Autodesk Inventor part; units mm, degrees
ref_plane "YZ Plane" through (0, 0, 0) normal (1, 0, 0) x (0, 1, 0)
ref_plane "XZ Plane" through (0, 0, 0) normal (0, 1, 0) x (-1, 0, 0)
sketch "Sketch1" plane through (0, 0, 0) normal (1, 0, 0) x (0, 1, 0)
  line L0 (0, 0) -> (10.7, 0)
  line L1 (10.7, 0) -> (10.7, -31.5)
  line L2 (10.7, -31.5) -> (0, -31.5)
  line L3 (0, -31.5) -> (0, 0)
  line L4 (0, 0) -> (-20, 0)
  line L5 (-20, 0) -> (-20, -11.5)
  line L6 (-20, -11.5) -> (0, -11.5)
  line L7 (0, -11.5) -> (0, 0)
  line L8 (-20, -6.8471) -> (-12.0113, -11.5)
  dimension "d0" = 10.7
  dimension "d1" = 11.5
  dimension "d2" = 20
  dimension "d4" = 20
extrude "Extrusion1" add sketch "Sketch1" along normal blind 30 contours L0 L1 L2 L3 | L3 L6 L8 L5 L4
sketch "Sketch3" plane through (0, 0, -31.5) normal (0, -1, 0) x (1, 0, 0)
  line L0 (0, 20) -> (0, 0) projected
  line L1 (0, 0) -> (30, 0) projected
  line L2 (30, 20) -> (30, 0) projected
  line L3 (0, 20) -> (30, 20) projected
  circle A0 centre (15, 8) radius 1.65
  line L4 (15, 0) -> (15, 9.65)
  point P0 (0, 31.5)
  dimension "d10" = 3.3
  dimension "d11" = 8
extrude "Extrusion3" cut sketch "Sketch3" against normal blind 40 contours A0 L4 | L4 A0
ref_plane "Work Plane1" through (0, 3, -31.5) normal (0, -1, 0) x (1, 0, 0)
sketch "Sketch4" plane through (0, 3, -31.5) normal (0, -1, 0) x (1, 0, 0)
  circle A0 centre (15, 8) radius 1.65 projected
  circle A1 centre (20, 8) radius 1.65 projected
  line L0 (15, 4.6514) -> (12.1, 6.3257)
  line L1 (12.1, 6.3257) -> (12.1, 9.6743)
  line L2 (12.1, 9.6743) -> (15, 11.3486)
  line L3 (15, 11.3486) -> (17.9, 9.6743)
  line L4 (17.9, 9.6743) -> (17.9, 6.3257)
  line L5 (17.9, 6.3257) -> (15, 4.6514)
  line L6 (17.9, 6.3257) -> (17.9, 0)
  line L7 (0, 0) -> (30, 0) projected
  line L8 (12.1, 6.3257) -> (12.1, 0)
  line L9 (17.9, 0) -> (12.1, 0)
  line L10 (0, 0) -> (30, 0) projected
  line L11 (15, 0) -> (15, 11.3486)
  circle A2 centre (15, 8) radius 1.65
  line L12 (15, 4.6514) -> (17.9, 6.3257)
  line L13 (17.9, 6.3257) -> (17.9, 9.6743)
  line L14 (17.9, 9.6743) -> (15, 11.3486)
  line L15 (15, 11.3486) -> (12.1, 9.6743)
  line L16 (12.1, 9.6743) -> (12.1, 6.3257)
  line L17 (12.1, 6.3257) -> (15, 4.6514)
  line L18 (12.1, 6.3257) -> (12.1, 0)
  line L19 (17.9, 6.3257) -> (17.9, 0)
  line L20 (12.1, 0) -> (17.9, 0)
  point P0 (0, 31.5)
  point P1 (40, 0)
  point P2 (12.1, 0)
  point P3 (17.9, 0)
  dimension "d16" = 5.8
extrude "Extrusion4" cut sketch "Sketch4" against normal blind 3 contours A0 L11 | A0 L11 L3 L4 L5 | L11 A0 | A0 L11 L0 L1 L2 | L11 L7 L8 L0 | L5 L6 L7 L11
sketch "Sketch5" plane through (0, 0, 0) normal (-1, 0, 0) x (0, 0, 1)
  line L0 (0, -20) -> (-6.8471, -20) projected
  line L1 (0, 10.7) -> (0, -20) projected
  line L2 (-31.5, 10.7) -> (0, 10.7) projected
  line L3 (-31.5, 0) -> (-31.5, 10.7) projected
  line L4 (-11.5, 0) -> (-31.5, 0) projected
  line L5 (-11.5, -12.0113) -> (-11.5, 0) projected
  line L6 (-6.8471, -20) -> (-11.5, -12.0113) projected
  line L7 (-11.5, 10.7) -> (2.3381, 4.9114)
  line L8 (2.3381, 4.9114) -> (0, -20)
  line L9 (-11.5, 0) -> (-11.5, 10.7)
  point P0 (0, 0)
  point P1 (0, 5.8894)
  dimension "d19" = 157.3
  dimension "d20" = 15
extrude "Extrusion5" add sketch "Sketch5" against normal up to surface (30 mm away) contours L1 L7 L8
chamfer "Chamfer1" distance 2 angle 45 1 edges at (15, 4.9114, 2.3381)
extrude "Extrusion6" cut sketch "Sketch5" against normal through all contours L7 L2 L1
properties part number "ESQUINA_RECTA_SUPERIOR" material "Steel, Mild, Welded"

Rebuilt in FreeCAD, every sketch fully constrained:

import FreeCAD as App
import Part
import Sketcher
Q = App.Units.Quantity


def edges_at(feature, points):
    """Names of the edges that pass closest to the given points."""
    edges = feature.Shape.Edges
    near = lambda p: min(range(len(edges)), key=lambda i: edges[i].distToShape(Part.Vertex(*p))[0])
    return sorted({f"Edge{near(p) + 1}" for p in points})

doc = App.newDocument("Part")
body = doc.addObject("PartDesign::Body", "Body")

# Sketch on YZ plane
sketch1 = body.newObject("Sketcher::SketchObject", "Sketch")
sketch1.AttachmentSupport = (doc.getObject("YZ_Plane"), [""])
sketch1.MapMode = "FlatFace"
sketch1.addGeometry([
    Part.LineSegment(App.Vector(11, 0, 0), App.Vector(-20, 0, 0)),  # 0
    Part.LineSegment(App.Vector(-20, 0, 0), App.Vector(-20, -7, 0)),  # 1
    Part.LineSegment(App.Vector(-20, -7, 0), App.Vector(-12, -12, 0)),  # 2
    Part.LineSegment(App.Vector(-12, -12, 0), App.Vector(0, -12, 0)),  # 3
    Part.LineSegment(App.Vector(0, -12, 0), App.Vector(0, -32, 0)),  # 4
    Part.LineSegment(App.Vector(0, -32, 0), App.Vector(11, -32, 0)),  # 5
    Part.LineSegment(App.Vector(11, -32, 0), App.Vector(11, 0, 0)),  # 6
], False)
sketch1.addConstraint([
    Sketcher.Constraint("Coincident", 0, 2, 1, 1),
    Sketcher.Constraint("Coincident", 1, 2, 2, 1),
    Sketcher.Constraint("Coincident", 2, 2, 3, 1),
    Sketcher.Constraint("Coincident", 3, 2, 4, 1),
    Sketcher.Constraint("Coincident", 4, 2, 5, 1),
    Sketcher.Constraint("Coincident", 5, 2, 6, 1),
    Sketcher.Constraint("Coincident", 6, 2, 0, 1),
    Sketcher.Constraint("Horizontal", 0),
    Sketcher.Constraint("Vertical", 1),
    Sketcher.Constraint("Horizontal", 3),
    Sketcher.Constraint("Vertical", 4),
    Sketcher.Constraint("Horizontal", 5),
    Sketcher.Constraint("Vertical", 6),
    Sketcher.Constraint("PointOnObject", 0, 2, -1),
    Sketcher.Constraint("PointOnObject", 3, 2, -2),
    Sketcher.Constraint("DistanceY", 4, 2, 4, 1, Q("20 mm")),
    Sketcher.Constraint("DistanceX", 5, 1, 5, 2, Q("10.7 mm")),
    Sketcher.Constraint("DistanceX", 0, 2, -1, 1, Q("20 mm")),
    Sketcher.Constraint("DistanceY", 2, 2, -1, 1, Q("11.5 mm")),
    Sketcher.Constraint("DistanceY", 1, 2, 1, 1, Q("6.847 mm")),
    Sketcher.Constraint("Distance", 2, Q("9.245 mm")),
])
pad1 = body.newObject("PartDesign::Pad", "Pad")
pad1.Profile = sketch1
pad1.Length = 30

# Sketch on XZ plane
sketch2 = body.newObject("Sketcher::SketchObject", "Sketch001")
sketch2.AttachmentSupport = (doc.getObject("XZ_Plane"), [""])
sketch2.MapMode = "FlatFace"
sketch2.addGeometry(Part.Circle(App.Vector(15, -23.5, 0), App.Vector(0, 0, 1), 1.6), False)
sketch2.addConstraint([
    Sketcher.Constraint("Diameter", 0, Q("3.3 mm")),
    Sketcher.Constraint("DistanceX", -1, 1, 0, 3, Q("15 mm")),
    Sketcher.Constraint("DistanceY", 0, 3, -1, 1, Q("23.5 mm")),
])
pocket1 = body.newObject("PartDesign::Pocket", "Pocket")
pocket1.Profile = sketch2
pocket1.Length = 40

# Sketch on XZ plane
sketch3 = body.newObject("Sketcher::SketchObject", "Sketch002")
sketch3.AttachmentSupport = (doc.getObject("XZ_Plane"), [""])
sketch3.MapMode = "FlatFace"
sketch3.AttachmentOffset = App.Placement(App.Vector(0, 0, -3), App.Rotation())
sketch3.addGeometry([
    Part.LineSegment(App.Vector(17.9, -21.8, 0), App.Vector(15, -20.2, 0)),  # 0
    Part.LineSegment(App.Vector(15, -20.2, 0), App.Vector(12.1, -21.8, 0)),  # 1
    Part.LineSegment(App.Vector(12.1, -21.8, 0), App.Vector(12.1, -31.5, 0)),  # 2
    Part.LineSegment(App.Vector(12.1, -31.5, 0), App.Vector(17.9, -31.5, 0)),  # 3
    Part.LineSegment(App.Vector(17.9, -31.5, 0), App.Vector(17.9, -21.8, 0)),  # 4
], False)
sketch3.addConstraint([
    Sketcher.Constraint("Coincident", 0, 2, 1, 1),
    Sketcher.Constraint("Coincident", 1, 2, 2, 1),
    Sketcher.Constraint("Coincident", 2, 2, 3, 1),
    Sketcher.Constraint("Coincident", 3, 2, 4, 1),
    Sketcher.Constraint("Coincident", 4, 2, 0, 1),
    Sketcher.Constraint("Vertical", 2),
    Sketcher.Constraint("Horizontal", 3),
    Sketcher.Constraint("Vertical", 4),
    Sketcher.Constraint("Horizontal", 1, 2, 4, 2),
    Sketcher.Constraint("Equal", 0, 1),
    Sketcher.Constraint("DistanceX", 3, 1, 3, 2, Q("5.8 mm")),
    Sketcher.Constraint("Angle", 0, Q("150.0002 deg")),
    Sketcher.Constraint("DistanceX", -1, 1, 0, 2, Q("15 mm")),
    Sketcher.Constraint("DistanceY", 2, 2, -1, 1, Q("31.5 mm")),
    Sketcher.Constraint("DistanceY", 2, 2, 2, 1, Q("9.6743 mm")),
])
pocket2 = body.newObject("PartDesign::Pocket", "Pocket001")
pocket2.Profile = sketch3
pocket2.Length = 3

# Sketch on YZ plane
sketch4 = body.newObject("Sketcher::SketchObject", "Sketch003")
sketch4.AttachmentSupport = (doc.getObject("YZ_Plane"), [""])
sketch4.MapMode = "FlatFace"
sketch4.addGeometry([
    Part.LineSegment(App.Vector(5.9, 0, 0), App.Vector(-20, 0, 0)),
    Part.LineSegment(App.Vector(-20, 0, 0), App.Vector(4.9, 2.3, 0)),
    Part.LineSegment(App.Vector(4.9, 2.3, 0), App.Vector(5.9, 0, 0)),
], False)
sketch4.addConstraint([
    Sketcher.Constraint("Coincident", 0, 2, 1, 1),
    Sketcher.Constraint("Coincident", 1, 2, 2, 1),
    Sketcher.Constraint("Coincident", 2, 2, 0, 1),
    Sketcher.Constraint("Horizontal", 0),
    Sketcher.Constraint("PointOnObject", 0, 2, -1),
    Sketcher.Constraint("DistanceX", 0, 2, -1, 1, Q("20 mm")),
    Sketcher.Constraint("Angle", 2, Q("-67.3 deg")),
    Sketcher.Constraint("Distance", 1, Q("25.021 mm")),
    Sketcher.Constraint("DistanceX", 0, 2, 0, 1, Q("25.8894 mm")),
])
pad2 = body.newObject("PartDesign::Pad", "Pad001")
pad2.Profile = sketch4
pad2.Length = 30
doc.recompute()

chamfer = body.newObject("PartDesign::Chamfer", "Chamfer")
chamfer.Base = (pad2, edges_at(pad2, [(15, 4.911, 2.338)]))
chamfer.Size = 2

# Sketch on YZ plane
sketch5 = body.newObject("Sketcher::SketchObject", "Sketch004")
sketch5.AttachmentSupport = (doc.getObject("YZ_Plane"), [""])
sketch5.MapMode = "FlatFace"
sketch5.addGeometry([
    Part.LineSegment(App.Vector(10.7, -11.5, 0), App.Vector(5.9, 0, 0)),
    Part.LineSegment(App.Vector(5.9, 0, 0), App.Vector(10.7, 0, 0)),
    Part.LineSegment(App.Vector(10.7, 0, 0), App.Vector(10.7, -11.5, 0)),
], False)
sketch5.addConstraint([
    Sketcher.Constraint("Coincident", 0, 2, 1, 1),
    Sketcher.Constraint("Coincident", 1, 2, 2, 1),
    Sketcher.Constraint("Coincident", 2, 2, 0, 1),
    Sketcher.Constraint("Horizontal", 1),
    Sketcher.Constraint("Vertical", 2),
    Sketcher.Constraint("PointOnObject", 0, 2, -1),
    Sketcher.Constraint("DistanceY", 2, 2, 2, 1, Q("11.5 mm")),
    Sketcher.Constraint("Angle", 0, Q("112.7 deg")),
    Sketcher.Constraint("DistanceX", -1, 1, 1, 2, Q("10.7 mm")),
])
pocket3 = body.newObject("PartDesign::Pocket", "Pocket002")
pocket3.Profile = sketch5
pocket3.Type = "ThroughAll"
pocket3.Reversed = True

doc.recompute()
